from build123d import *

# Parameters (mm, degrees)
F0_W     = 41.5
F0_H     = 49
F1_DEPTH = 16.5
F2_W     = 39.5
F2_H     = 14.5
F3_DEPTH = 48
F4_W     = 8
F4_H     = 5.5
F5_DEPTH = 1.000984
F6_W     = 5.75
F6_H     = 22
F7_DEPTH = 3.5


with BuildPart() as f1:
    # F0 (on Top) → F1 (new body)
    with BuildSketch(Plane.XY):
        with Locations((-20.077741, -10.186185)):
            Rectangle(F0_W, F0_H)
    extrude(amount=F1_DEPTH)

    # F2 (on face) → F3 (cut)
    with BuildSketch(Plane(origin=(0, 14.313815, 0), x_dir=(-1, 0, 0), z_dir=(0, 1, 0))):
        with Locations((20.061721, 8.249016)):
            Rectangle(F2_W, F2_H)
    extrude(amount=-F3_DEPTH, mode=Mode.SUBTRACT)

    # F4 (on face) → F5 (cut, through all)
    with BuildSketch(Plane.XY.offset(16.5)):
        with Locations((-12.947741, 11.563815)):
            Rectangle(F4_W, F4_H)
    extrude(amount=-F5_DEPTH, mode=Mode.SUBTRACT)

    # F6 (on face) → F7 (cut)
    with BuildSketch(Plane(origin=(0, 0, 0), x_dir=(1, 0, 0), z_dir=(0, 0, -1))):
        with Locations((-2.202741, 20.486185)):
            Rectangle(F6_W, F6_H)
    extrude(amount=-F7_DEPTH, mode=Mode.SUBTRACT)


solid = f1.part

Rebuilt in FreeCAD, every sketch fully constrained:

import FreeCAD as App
import Part
import Sketcher

V = App.Vector
Q = App.Units.Quantity

doc = App.newDocument("Part")
body = doc.addObject("PartDesign::Body", "Body")

sketch1 = body.newObject("Sketcher::SketchObject", "Sketch")
sketch1.AttachmentSupport = (doc.getObject("XY_Plane"), [""])
sketch1.MapMode = "FlatFace"
sketch1.addGeometry([
    Part.LineSegment(V(-41, 14, 0), V(-41, -35, 0)),
    Part.LineSegment(V(-41, -35, 0), V(1, -35, 0)),
    Part.LineSegment(V(1, -35, 0), V(1, 14, 0)),
    Part.LineSegment(V(1, 14, 0), V(-41, 14, 0)),
], False)
sketch1.addConstraint([
    Sketcher.Constraint("Coincident", 0, 2, 1, 1),
    Sketcher.Constraint("Coincident", 1, 2, 2, 1),
    Sketcher.Constraint("Coincident", 2, 2, 3, 1),
    Sketcher.Constraint("Coincident", 3, 2, 0, 1),
    Sketcher.Constraint("Vertical", 0),
    Sketcher.Constraint("Horizontal", 1),
    Sketcher.Constraint("Vertical", 2),
    Sketcher.Constraint("Horizontal", 3),
    Sketcher.Constraint("DistanceY", 0, 2, 0, 1, Q("49 mm")),
    Sketcher.Constraint("DistanceX", 1, 1, 1, 2, Q("41.5 mm")),
    Sketcher.Constraint("DistanceX", 0, 2, -1, 1, Q("40.827741 mm")),
    Sketcher.Constraint("DistanceY", 0, 2, -1, 1, Q("34.686185 mm")),
])
pad1 = body.newObject("PartDesign::Pad", "Pad")
pad1.Profile = sketch1
pad1.Length = 16.5

sketch2 = body.newObject("Sketcher::SketchObject", "Sketch001")
sketch2.AttachmentSupport = (doc.getObject("XZ_Plane"), [""])
sketch2.MapMode = "FlatFace"
sketch2.AttachmentOffset = App.Placement(V(0, 0, -14.313815), App.Rotation())
sketch2.addGeometry([
    Part.LineSegment(V(0, 15, 0), V(0, 1, 0)),
    Part.LineSegment(V(0, 1, 0), V(-40, 1, 0)),
    Part.LineSegment(V(-40, 1, 0), V(-40, 15, 0)),
    Part.LineSegment(V(-40, 15, 0), V(0, 15, 0)),
], False)
sketch2.addConstraint([
    Sketcher.Constraint("Coincident", 0, 2, 1, 1),
    Sketcher.Constraint("Coincident", 1, 2, 2, 1),
    Sketcher.Constraint("Coincident", 2, 2, 3, 1),
    Sketcher.Constraint("Coincident", 3, 2, 0, 1),
    Sketcher.Constraint("Vertical", 0),
    Sketcher.Constraint("Horizontal", 1),
    Sketcher.Constraint("Vertical", 2),
    Sketcher.Constraint("Horizontal", 3),
    Sketcher.Constraint("DistanceX", 1, 2, 1, 1, Q("39.5 mm")),
    Sketcher.Constraint("DistanceY", 0, 2, 0, 1, Q("14.5 mm")),
    Sketcher.Constraint("DistanceX", 0, 2, -1, 1, Q("0.311721 mm")),
    Sketcher.Constraint("DistanceY", -1, 1, 0, 2, Q("0.999016 mm")),
])
pocket1 = body.newObject("PartDesign::Pocket", "Pocket")
pocket1.Profile = sketch2
pocket1.Length = 48
pocket1.Reversed = True

sketch3 = body.newObject("Sketcher::SketchObject", "Sketch002")
sketch3.AttachmentSupport = (doc.getObject("XY_Plane"), [""])
sketch3.MapMode = "FlatFace"
sketch3.AttachmentOffset = App.Placement(V(0, 0, 16.5), App.Rotation())
sketch3.addGeometry([
    Part.LineSegment(V(-17, 14, 0), V(-17, 9, 0)),
    Part.LineSegment(V(-17, 9, 0), V(-9, 9, 0)),
    Part.LineSegment(V(-9, 9, 0), V(-9, 14, 0)),
    Part.LineSegment(V(-9, 14, 0), V(-17, 14, 0)),
], False)
sketch3.addConstraint([
    Sketcher.Constraint("Coincident", 0, 2, 1, 1),
    Sketcher.Constraint("Coincident", 1, 2, 2, 1),
    Sketcher.Constraint("Coincident", 2, 2, 3, 1),
    Sketcher.Constraint("Coincident", 3, 2, 0, 1),
    Sketcher.Constraint("Vertical", 0),
    Sketcher.Constraint("Horizontal", 1),
    Sketcher.Constraint("Vertical", 2),
    Sketcher.Constraint("Horizontal", 3),
    Sketcher.Constraint("DistanceX", 1, 1, 1, 2, Q("8 mm")),
    Sketcher.Constraint("DistanceY", 0, 2, 0, 1, Q("5.5 mm")),
    Sketcher.Constraint("DistanceX", 0, 2, -1, 1, Q("16.947741 mm")),
    Sketcher.Constraint("DistanceY", -1, 1, 0, 2, Q("8.813815 mm")),
])
pocket2 = body.newObject("PartDesign::Pocket", "Pocket001")
pocket2.Profile = sketch3
pocket2.Length = 1.000984

sketch4 = body.newObject("Sketcher::SketchObject", "Sketch003")
sketch4.AttachmentSupport = (doc.getObject("XY_Plane"), [""])
sketch4.MapMode = "FlatFace"
sketch4.addGeometry([
    Part.LineSegment(V(-5, -31, 0), V(-5, -9, 0)),
    Part.LineSegment(V(-5, -9, 0), V(1, -9, 0)),
    Part.LineSegment(V(1, -9, 0), V(1, -31, 0)),
    Part.LineSegment(V(1, -31, 0), V(-5, -31, 0)),
], False)
sketch4.addConstraint([
    Sketcher.Constraint("Coincident", 0, 2, 1, 1),
    Sketcher.Constraint("Coincident", 1, 2, 2, 1),
    Sketcher.Constraint("Coincident", 2, 2, 3, 1),
    Sketcher.Constraint("Coincident", 3, 2, 0, 1),
    Sketcher.Constraint("Vertical", 0),
    Sketcher.Constraint("Horizontal", 1),
    Sketcher.Constraint("Vertical", 2),
    Sketcher.Constraint("Horizontal", 3),
    Sketcher.Constraint("DistanceY", 0, 1, 0, 2, Q("22 mm")),
    Sketcher.Constraint("DistanceX", 1, 1, 1, 2, Q("5.75 mm")),
    Sketcher.Constraint("DistanceX", 0, 2, -1, 1, Q("5.077741 mm")),
    Sketcher.Constraint("DistanceY", 0, 2, -1, 1, Q("9.486185 mm")),
])
pocket3 = body.newObject("PartDesign::Pocket", "Pocket002")
pocket3.Profile = sketch4
pocket3.Length = 3.5
pocket3.Reversed = True

doc.recompute()
